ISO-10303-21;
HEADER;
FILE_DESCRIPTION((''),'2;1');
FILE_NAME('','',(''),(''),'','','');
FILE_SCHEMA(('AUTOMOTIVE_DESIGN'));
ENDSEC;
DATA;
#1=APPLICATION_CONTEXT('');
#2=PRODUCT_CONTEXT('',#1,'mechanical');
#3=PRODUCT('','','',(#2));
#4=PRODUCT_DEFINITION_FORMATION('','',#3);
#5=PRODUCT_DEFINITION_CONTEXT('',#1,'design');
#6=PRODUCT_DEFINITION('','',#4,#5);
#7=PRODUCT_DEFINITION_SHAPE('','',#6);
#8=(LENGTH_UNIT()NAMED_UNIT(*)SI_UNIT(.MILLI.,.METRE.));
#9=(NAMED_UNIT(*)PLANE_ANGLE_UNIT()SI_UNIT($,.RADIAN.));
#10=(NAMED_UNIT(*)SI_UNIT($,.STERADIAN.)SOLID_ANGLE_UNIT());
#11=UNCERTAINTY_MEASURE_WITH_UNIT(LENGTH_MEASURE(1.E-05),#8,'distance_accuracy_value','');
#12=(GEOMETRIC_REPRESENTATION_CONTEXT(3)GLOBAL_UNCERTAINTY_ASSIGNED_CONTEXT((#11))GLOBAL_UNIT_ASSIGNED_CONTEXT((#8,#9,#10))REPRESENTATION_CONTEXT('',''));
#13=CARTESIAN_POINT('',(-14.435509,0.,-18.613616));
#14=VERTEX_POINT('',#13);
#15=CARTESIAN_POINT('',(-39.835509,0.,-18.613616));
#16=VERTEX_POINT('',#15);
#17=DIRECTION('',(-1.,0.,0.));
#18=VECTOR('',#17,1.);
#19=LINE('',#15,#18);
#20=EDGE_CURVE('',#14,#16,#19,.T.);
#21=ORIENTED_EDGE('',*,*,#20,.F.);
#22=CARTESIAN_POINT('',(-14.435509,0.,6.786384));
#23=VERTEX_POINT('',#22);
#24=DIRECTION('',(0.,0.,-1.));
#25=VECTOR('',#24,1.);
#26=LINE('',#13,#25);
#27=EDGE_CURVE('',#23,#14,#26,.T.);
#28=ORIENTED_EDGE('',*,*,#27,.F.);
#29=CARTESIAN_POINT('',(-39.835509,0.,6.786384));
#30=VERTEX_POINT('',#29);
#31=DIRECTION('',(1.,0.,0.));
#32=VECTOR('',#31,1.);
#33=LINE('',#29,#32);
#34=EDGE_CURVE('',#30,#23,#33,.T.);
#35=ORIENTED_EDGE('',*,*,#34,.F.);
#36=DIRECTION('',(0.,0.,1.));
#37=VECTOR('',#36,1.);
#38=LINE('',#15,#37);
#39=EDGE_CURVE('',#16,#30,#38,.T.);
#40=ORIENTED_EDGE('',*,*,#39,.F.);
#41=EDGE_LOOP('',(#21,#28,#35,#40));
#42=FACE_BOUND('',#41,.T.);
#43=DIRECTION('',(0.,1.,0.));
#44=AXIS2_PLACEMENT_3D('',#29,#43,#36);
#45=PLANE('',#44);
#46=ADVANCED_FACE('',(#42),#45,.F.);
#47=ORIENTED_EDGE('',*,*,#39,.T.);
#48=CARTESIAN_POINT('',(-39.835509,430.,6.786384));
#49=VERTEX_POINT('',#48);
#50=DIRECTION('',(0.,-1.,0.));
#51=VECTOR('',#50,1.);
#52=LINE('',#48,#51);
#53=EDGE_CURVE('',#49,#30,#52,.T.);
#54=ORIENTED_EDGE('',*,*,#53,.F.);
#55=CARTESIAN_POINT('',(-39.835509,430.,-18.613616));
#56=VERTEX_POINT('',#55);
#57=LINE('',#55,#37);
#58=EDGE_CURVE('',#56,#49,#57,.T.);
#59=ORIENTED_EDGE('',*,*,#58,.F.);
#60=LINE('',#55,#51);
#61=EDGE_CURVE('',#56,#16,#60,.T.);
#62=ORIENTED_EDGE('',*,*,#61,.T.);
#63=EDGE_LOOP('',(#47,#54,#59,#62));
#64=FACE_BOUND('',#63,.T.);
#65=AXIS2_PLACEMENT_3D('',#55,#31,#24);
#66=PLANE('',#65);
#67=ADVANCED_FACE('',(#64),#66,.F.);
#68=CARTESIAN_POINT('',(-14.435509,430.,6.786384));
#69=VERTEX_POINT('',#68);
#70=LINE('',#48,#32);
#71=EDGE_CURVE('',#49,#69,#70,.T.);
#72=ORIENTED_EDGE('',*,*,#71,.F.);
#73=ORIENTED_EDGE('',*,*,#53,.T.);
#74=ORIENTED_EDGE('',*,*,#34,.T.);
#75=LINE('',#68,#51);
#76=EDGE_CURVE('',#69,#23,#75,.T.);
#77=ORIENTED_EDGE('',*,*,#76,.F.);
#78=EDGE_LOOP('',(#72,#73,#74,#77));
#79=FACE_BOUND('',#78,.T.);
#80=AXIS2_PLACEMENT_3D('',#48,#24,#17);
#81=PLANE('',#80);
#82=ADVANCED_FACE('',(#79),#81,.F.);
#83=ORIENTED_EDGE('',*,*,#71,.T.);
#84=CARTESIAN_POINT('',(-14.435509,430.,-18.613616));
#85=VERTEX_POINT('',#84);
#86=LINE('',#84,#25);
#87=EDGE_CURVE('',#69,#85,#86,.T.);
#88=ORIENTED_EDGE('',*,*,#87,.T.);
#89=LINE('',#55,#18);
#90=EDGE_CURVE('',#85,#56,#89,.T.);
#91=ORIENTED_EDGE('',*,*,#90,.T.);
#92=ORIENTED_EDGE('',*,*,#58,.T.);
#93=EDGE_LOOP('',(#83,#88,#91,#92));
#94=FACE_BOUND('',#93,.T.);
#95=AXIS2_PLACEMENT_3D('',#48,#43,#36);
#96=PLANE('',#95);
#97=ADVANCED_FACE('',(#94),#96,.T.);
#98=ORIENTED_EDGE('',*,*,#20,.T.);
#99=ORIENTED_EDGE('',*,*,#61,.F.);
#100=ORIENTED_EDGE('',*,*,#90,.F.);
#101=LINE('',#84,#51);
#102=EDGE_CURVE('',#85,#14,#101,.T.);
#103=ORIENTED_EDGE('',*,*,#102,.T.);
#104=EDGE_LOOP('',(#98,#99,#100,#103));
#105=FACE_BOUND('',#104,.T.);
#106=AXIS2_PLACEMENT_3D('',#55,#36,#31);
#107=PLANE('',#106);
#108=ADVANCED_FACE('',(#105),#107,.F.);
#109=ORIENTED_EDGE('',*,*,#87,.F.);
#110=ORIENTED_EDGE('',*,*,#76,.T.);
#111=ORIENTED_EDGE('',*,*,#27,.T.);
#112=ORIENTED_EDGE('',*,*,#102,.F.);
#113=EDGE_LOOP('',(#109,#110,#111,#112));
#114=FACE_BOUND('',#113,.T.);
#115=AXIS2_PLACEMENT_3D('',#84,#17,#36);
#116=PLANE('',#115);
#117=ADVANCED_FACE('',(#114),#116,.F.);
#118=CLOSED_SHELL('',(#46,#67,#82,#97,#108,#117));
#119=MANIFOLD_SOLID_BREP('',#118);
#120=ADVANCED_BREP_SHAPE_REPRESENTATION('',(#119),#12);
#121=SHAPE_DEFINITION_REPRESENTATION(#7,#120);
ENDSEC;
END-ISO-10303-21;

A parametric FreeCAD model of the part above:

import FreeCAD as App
import Part
import Sketcher

V = App.Vector


def add_polygon(sketch, points):
    """Adds a closed chain of lines whose ends are joined by coincident constraints."""
    first, n = sketch.GeometryCount, len(points)
    for a, b in zip(points, points[1:] + points[:1]):
        sketch.addGeometry(Part.LineSegment(App.Vector(*a, 0), App.Vector(*b, 0)), False)
    for i in range(n):
        sketch.addConstraint(Sketcher.Constraint("Coincident", first + i, 2, first + (i + 1) % n, 1))

doc = App.newDocument("Part")
params = doc.addObject("Spreadsheet::Sheet", "Params")
for row, (alias, value) in enumerate([
    ("sketch1_width", "25.4 mm"),
    ("pad1_length", "430 mm"),
], start=1):
    params.set(f"A{row}", alias)
    params.set(f"B{row}", "=" + value)
    params.setAlias(f"B{row}", alias)

body = doc.addObject("PartDesign::Body", "Body")

# Sketch on XZ plane
sketch1 = body.newObject("Sketcher::SketchObject", "Sketch")
sketch1.AttachmentSupport = (doc.getObject("XZ_Plane"), [""])
sketch1.MapMode = "FlatFace"
add_polygon(sketch1, [(-40, -19), (-40, 7), (-14, 7), (-14, -19)])  # lines 0-3
sketch1.addConstraint(Sketcher.Constraint("Vertical", 0))
sketch1.addConstraint(Sketcher.Constraint("Horizontal", 1))
sketch1.addConstraint(Sketcher.Constraint("Vertical", 2))
sketch1.addConstraint(Sketcher.Constraint("Horizontal", 3))
sketch1.addConstraint(Sketcher.Constraint("Equal", 3, 0))
sketch1.addConstraint(Sketcher.Constraint("DistanceX", 1, 1, 1, 2, 25.4))
sketch1.addConstraint(Sketcher.Constraint("DistanceX", 0, 2, -1, 1, 39.835509))
sketch1.addConstraint(Sketcher.Constraint("DistanceY", -1, 1, 0, 2, 6.786384))
sketch1.setExpression("Constraints[9]", "Params.sketch1_width")
pad1 = body.newObject("PartDesign::Pad", "Pad")
pad1.Profile = sketch1
pad1.setExpression("Length", "Params.pad1_length")
pad1.Reversed = True

doc.recompute()
